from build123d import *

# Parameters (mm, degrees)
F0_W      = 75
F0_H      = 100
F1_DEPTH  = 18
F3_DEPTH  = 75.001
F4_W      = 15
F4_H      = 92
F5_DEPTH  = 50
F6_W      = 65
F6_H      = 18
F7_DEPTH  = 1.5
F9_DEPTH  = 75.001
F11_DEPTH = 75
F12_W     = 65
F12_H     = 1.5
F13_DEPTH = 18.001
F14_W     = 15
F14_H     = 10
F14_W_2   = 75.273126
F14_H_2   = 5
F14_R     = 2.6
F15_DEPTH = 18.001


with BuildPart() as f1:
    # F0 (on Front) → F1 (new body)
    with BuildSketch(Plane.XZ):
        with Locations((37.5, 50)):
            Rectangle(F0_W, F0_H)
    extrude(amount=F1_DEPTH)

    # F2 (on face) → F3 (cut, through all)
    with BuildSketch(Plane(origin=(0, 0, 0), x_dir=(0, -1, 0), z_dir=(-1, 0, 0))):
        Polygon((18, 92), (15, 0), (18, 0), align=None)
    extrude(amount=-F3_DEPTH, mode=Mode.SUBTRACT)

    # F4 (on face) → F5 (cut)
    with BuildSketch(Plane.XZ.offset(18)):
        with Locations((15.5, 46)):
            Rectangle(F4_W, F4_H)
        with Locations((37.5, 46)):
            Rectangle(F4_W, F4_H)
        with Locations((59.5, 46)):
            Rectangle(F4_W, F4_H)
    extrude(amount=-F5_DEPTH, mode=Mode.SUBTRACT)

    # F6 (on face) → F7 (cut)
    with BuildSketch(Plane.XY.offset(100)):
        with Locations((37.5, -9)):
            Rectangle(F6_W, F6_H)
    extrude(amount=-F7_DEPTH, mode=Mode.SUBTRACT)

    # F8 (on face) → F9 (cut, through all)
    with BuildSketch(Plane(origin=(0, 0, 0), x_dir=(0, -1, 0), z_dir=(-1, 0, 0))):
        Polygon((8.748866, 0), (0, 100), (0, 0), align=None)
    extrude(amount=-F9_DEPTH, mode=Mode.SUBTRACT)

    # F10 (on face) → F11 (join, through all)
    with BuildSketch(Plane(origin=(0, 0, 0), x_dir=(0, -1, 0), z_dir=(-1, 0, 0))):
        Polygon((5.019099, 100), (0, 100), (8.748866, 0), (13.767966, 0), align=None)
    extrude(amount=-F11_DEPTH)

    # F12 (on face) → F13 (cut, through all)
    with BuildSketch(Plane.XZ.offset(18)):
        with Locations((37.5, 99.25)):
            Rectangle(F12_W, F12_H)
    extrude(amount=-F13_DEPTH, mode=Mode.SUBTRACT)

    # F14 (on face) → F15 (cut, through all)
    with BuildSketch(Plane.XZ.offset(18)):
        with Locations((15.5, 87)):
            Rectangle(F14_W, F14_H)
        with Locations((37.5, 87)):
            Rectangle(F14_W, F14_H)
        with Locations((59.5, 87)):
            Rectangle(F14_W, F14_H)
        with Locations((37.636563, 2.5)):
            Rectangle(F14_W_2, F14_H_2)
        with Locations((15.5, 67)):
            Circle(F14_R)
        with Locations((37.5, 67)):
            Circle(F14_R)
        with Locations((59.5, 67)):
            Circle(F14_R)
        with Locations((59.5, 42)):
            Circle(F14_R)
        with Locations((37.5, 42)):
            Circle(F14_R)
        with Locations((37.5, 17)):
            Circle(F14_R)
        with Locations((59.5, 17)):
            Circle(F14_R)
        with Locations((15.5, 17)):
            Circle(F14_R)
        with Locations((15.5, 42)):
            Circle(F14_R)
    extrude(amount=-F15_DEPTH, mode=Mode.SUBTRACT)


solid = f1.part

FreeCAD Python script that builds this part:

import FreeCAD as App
import Part
import Sketcher

V = App.Vector
Q = App.Units.Quantity

doc = App.newDocument("Part")
body = doc.addObject("PartDesign::Body", "Body")

sketch1 = doc.addObject("Sketcher::SketchObject", "Sketch")
body.addObject(sketch1)
sketch1.AttachmentSupport = (doc.XZ_Plane, [""])
sketch1.MapMode = "FlatFace"
sketch1.addGeometry([
    Part.LineSegment(V(0, 100, 0), V(0, 0, 0)),
    Part.LineSegment(V(0, 0, 0), V(75, 0, 0)),
    Part.LineSegment(V(75, 0, 0), V(75, 100, 0)),
    Part.LineSegment(V(75, 100, 0), V(0, 100, 0)),
], False)
sketch1.addConstraint([
    Sketcher.Constraint("Coincident", 0, 2, 1, 1),
    Sketcher.Constraint("Coincident", 1, 2, 2, 1),
    Sketcher.Constraint("Coincident", 2, 2, 3, 1),
    Sketcher.Constraint("Coincident", 3, 2, 0, 1),
    Sketcher.Constraint("Vertical", 0),
    Sketcher.Constraint("Horizontal", 1),
    Sketcher.Constraint("Vertical", 2),
    Sketcher.Constraint("Horizontal", 3),
    Sketcher.Constraint("Coincident", 0, 2, -1, 1),
    Sketcher.Constraint("DistanceX", 1, 1, 1, 2, Q("75 mm")),
    Sketcher.Constraint("DistanceY", 0, 2, 0, 1, Q("100 mm")),
])
pad1 = doc.addObject("PartDesign::Pad", "Pad")
body.addObject(pad1)
pad1.Profile = sketch1
pad1.Length = 18

sketch2 = doc.addObject("Sketcher::SketchObject", "Sketch001")
body.addObject(sketch2)
sketch2.AttachmentSupport = (doc.YZ_Plane, [""])
sketch2.MapMode = "FlatFace"
sketch2.addGeometry([
    Part.LineSegment(V(-18, 92, 0), V(-15, 0, 0)),
    Part.LineSegment(V(-15, 0, 0), V(-18, 0, 0)),
    Part.LineSegment(V(-18, 0, 0), V(-18, 92, 0)),
], False)
sketch2.addConstraint([
    Sketcher.Constraint("Coincident", 0, 2, 1, 1),
    Sketcher.Constraint("Coincident", 1, 2, 2, 1),
    Sketcher.Constraint("Coincident", 2, 2, 0, 1),
    Sketcher.Constraint("Horizontal", 1),
    Sketcher.Constraint("Vertical", 2),
    Sketcher.Constraint("PointOnObject", 0, 2, -1),
    Sketcher.Constraint("DistanceX", 1, 2, 1, 1, Q("3 mm")),
    Sketcher.Constraint("DistanceY", 2, 1, 2, 2, Q("92 mm")),
    Sketcher.Constraint("DistanceX", 0, 2, -1, 1, Q("15 mm")),
])
pocket1 = doc.addObject("PartDesign::Pocket", "Pocket")
body.addObject(pocket1)
pocket1.Profile = sketch2
pocket1.Type = "ThroughAll"
pocket1.Reversed = True

sketch3 = doc.addObject("Sketcher::SketchObject", "Sketch002")
body.addObject(sketch3)
sketch3.AttachmentSupport = (doc.XZ_Plane, [""])
sketch3.MapMode = "FlatFace"
sketch3.AttachmentOffset = App.Placement(V(0, 0, 18), App.Rotation())
sketch3.addGeometry([
    Part.LineSegment(V(8, 92, 0), V(8, 0, 0)),
    Part.LineSegment(V(8, 0, 0), V(23, 0, 0)),
    Part.LineSegment(V(23, 0, 0), V(23, 92, 0)),
    Part.LineSegment(V(23, 92, 0), V(8, 92, 0)),
    Part.LineSegment(V(30, 92, 0), V(30, 0, 0)),
    Part.LineSegment(V(30, 0, 0), V(45, 0, 0)),
    Part.LineSegment(V(45, 0, 0), V(45, 92, 0)),
    Part.LineSegment(V(45, 92, 0), V(30, 92, 0)),
    Part.LineSegment(V(52, 92, 0), V(52, 0, 0)),
    Part.LineSegment(V(52, 0, 0), V(67, 0, 0)),
    Part.LineSegment(V(67, 0, 0), V(67, 92, 0)),
    Part.LineSegment(V(67, 92, 0), V(52, 92, 0)),
], False)
sketch3.addConstraint([
    Sketcher.Constraint("Coincident", 0, 2, 1, 1),
    Sketcher.Constraint("Coincident", 1, 2, 2, 1),
    Sketcher.Constraint("Coincident", 2, 2, 3, 1),
    Sketcher.Constraint("Coincident", 3, 2, 0, 1),
    Sketcher.Constraint("Coincident", 4, 2, 5, 1),
    Sketcher.Constraint("Coincident", 5, 2, 6, 1),
    Sketcher.Constraint("Coincident", 6, 2, 7, 1),
    Sketcher.Constraint("Coincident", 7, 2, 4, 1),
    Sketcher.Constraint("Coincident", 8, 2, 9, 1),
    Sketcher.Constraint("Coincident", 9, 2, 10, 1),
    Sketcher.Constraint("Coincident", 10, 2, 11, 1),
    Sketcher.Constraint("Coincident", 11, 2, 8, 1),
    Sketcher.Constraint("Vertical", 0),
    Sketcher.Constraint("Horizontal", 1),
    Sketcher.Constraint("Vertical", 2),
    Sketcher.Constraint("Horizontal", 3),
    Sketcher.Constraint("Vertical", 4),
    Sketcher.Constraint("Horizontal", 5),
    Sketcher.Constraint("Vertical", 6),
    Sketcher.Constraint("Horizontal", 7),
    Sketcher.Constraint("Vertical", 8),
    Sketcher.Constraint("Horizontal", 9),
    Sketcher.Constraint("Vertical", 10),
    Sketcher.Constraint("Horizontal", 11),
    Sketcher.Constraint("PointOnObject", 0, 2, -1),
    Sketcher.Constraint("PointOnObject", 4, 2, -1),
    Sketcher.Constraint("PointOnObject", 8, 2, -1),
    Sketcher.Constraint("Horizontal", 3, 2, 6, 2),
    Sketcher.Constraint("Horizontal", 7, 2, 10, 2),
    Sketcher.Constraint("Equal", 3, 5),
    Sketcher.Constraint("Equal", 7, 9),
    Sketcher.Constraint("DistanceX", 1, 1, 1, 2, Q("15 mm")),
    Sketcher.Constraint("DistanceY", 0, 2, 0, 1, Q("92 mm")),
    Sketcher.Constraint("DistanceX", -1, 1, 0, 2, Q("8 mm")),
    Sketcher.Constraint("DistanceX", -1, 1, 4, 2, Q("30 mm")),
    Sketcher.Constraint("DistanceX", -1, 1, 8, 2, Q("52 mm")),
])
pocket2 = doc.addObject("PartDesign::Pocket", "Pocket001")
body.addObject(pocket2)
pocket2.Profile = sketch3
pocket2.Length = 50

sketch4 = doc.addObject("Sketcher::SketchObject", "Sketch003")
body.addObject(sketch4)
sketch4.AttachmentSupport = (doc.XY_Plane, [""])
sketch4.MapMode = "FlatFace"
sketch4.AttachmentOffset = App.Placement(V(0, 0, 100), App.Rotation())
sketch4.addGeometry([
    Part.LineSegment(V(5, 0, 0), V(5, -18, 0)),
    Part.LineSegment(V(5, -18, 0), V(70, -18, 0)),
    Part.LineSegment(V(70, -18, 0), V(70, 0, 0)),
    Part.LineSegment(V(70, 0, 0), V(5, 0, 0)),
], False)
sketch4.addConstraint([
    Sketcher.Constraint("Coincident", 0, 2, 1, 1),
    Sketcher.Constraint("Coincident", 1, 2, 2, 1),
    Sketcher.Constraint("Coincident", 2, 2, 3, 1),
    Sketcher.Constraint("Coincident", 3, 2, 0, 1),
    Sketcher.Constraint("Vertical", 0),
    Sketcher.Constraint("Horizontal", 1),
    Sketcher.Constraint("Vertical", 2),
    Sketcher.Constraint("Horizontal", 3),
    Sketcher.Constraint("PointOnObject", 2, 2, -1),
    Sketcher.Constraint("DistanceX", 1, 1, 1, 2, Q("65 mm")),
    Sketcher.Constraint("DistanceY", 0, 2, 0, 1, Q("18 mm")),
    Sketcher.Constraint("DistanceX", -1, 1, 0, 2, Q("5 mm")),
])
pocket3 = doc.addObject("PartDesign::Pocket", "Pocket002")
body.addObject(pocket3)
pocket3.Profile = sketch4
pocket3.Length = 1.5

sketch5 = doc.addObject("Sketcher::SketchObject", "Sketch004")
body.addObject(sketch5)
sketch5.AttachmentSupport = (doc.YZ_Plane, [""])
sketch5.MapMode = "FlatFace"
sketch5.addGeometry([
    Part.LineSegment(V(-8.748866, 0, 0), V(0, 100, 0)),
    Part.LineSegment(V(0, 100, 0), V(0, 0, 0)),
    Part.LineSegment(V(0, 0, 0), V(-8.748866, 0, 0)),
], False)
sketch5.addConstraint([
    Sketcher.Constraint("Coincident", 0, 2, 1, 1),
    Sketcher.Constraint("Coincident", 1, 2, 2, 1),
    Sketcher.Constraint("Coincident", 2, 2, 0, 1),
    Sketcher.Constraint("Vertical", 1),
    Sketcher.Constraint("Horizontal", 2),
    Sketcher.Constraint("Coincident", 1, 2, -1, 1),
    Sketcher.Constraint("DistanceY", 1, 2, 1, 1, Q("100 mm")),
    Sketcher.Constraint("Angle", 0, Q("85 deg")),
])
pocket4 = doc.addObject("PartDesign::Pocket", "Pocket003")
body.addObject(pocket4)
pocket4.Profile = sketch5
pocket4.Type = "ThroughAll"
pocket4.Reversed = True

sketch6 = doc.addObject("Sketcher::SketchObject", "Sketch005")
body.addObject(sketch6)
sketch6.AttachmentSupport = (doc.YZ_Plane, [""])
sketch6.MapMode = "FlatFace"
sketch6.addGeometry([
    Part.LineSegment(V(-5.019099, 100, 0), V(0, 100, 0)),
    Part.LineSegment(V(0, 100, 0), V(-8.748866, 0, 0)),
    Part.LineSegment(V(-8.748866, 0, 0), V(-13.767966, 0, 0)),
    Part.LineSegment(V(-13.767966, 0, 0), V(-5.019099, 100, 0)),
], False)
sketch6.addConstraint([
    Sketcher.Constraint("Coincident", 0, 2, 1, 1),
    Sketcher.Constraint("Coincident", 1, 2, 2, 1),
    Sketcher.Constraint("Coincident", 2, 2, 3, 1),
    Sketcher.Constraint("Coincident", 3, 2, 0, 1),
    Sketcher.Constraint("Horizontal", 0),
    Sketcher.Constraint("Horizontal", 2),
    Sketcher.Constraint("PointOnObject", 0, 2, -2),
    Sketcher.Constraint("PointOnObject", 1, 2, -1),
    Sketcher.Constraint("Parallel", 1, 3),
    Sketcher.Constraint("Angle", 1, Q("-95 deg")),
    Sketcher.Constraint("DistanceY", -1, 1, 0, 2, Q("100 mm")),
    Sketcher.Constraint("DistanceX", 0, 1, 0, 2, Q("5.019099 mm")),
])
pad2 = doc.addObject("PartDesign::Pad", "Pad001")
body.addObject(pad2)
pad2.Profile = sketch6
pad2.Type = "UpToLast"

sketch7 = doc.addObject("Sketcher::SketchObject", "Sketch006")
body.addObject(sketch7)
sketch7.AttachmentSupport = (doc.XZ_Plane, [""])
sketch7.MapMode = "FlatFace"
sketch7.AttachmentOffset = App.Placement(V(0, 0, 18), App.Rotation())
sketch7.addGeometry([
    Part.LineSegment(V(5, 100, 0), V(5, 98.5, 0)),
    Part.LineSegment(V(5, 98.5, 0), V(70, 98.5, 0)),
    Part.LineSegment(V(70, 98.5, 0), V(70, 100, 0)),
    Part.LineSegment(V(70, 100, 0), V(5, 100, 0)),
], False)
sketch7.addConstraint([
    Sketcher.Constraint("Coincident", 0, 2, 1, 1),
    Sketcher.Constraint("Coincident", 1, 2, 2, 1),
    Sketcher.Constraint("Coincident", 2, 2, 3, 1),
    Sketcher.Constraint("Coincident", 3, 2, 0, 1),
    Sketcher.Constraint("Vertical", 0),
    Sketcher.Constraint("Horizontal", 1),
    Sketcher.Constraint("Vertical", 2),
    Sketcher.Constraint("Horizontal", 3),
    Sketcher.Constraint("DistanceX", 1, 1, 1, 2, Q("65 mm")),
    Sketcher.Constraint("DistanceY", 0, 2, 0, 1, Q("1.5 mm")),
    Sketcher.Constraint("DistanceX", -1, 1, 0, 2, Q("5 mm")),
    Sketcher.Constraint("DistanceY", -1, 1, 2, 2, Q("100 mm")),
])
pocket5 = doc.addObject("PartDesign::Pocket", "Pocket004")
body.addObject(pocket5)
pocket5.Profile = sketch7
pocket5.Type = "ThroughAll"

sketch8 = doc.addObject("Sketcher::SketchObject", "Sketch007")
body.addObject(sketch8)
sketch8.AttachmentSupport = (doc.XZ_Plane, [""])
sketch8.MapMode = "FlatFace"
sketch8.AttachmentOffset = App.Placement(V(0, 0, 18), App.Rotation())
sketch8.addGeometry([
    Part.LineSegment(V(8, 92, 0), V(8, 82, 0)),
    Part.LineSegment(V(8, 82, 0), V(23, 82, 0)),
    Part.LineSegment(V(23, 82, 0), V(23, 92, 0)),
    Part.LineSegment(V(23, 92, 0), V(8, 92, 0)),
    Part.LineSegment(V(30, 92, 0), V(30, 82, 0)),
    Part.LineSegment(V(30, 82, 0), V(45, 82, 0)),
    Part.LineSegment(V(45, 82, 0), V(45, 92, 0)),
    Part.LineSegment(V(45, 92, 0), V(30, 92, 0)),
    Part.LineSegment(V(52, 92, 0), V(52, 82, 0)),
    Part.LineSegment(V(52, 82, 0), V(67, 82, 0)),
    Part.LineSegment(V(67, 82, 0), V(67, 92, 0)),
    Part.LineSegment(V(67, 92, 0), V(52, 92, 0)),
    Part.LineSegment(V(0, 5, 0), V(0, 0, 0)),
    Part.LineSegment(V(0, 0, 0), V(75.273126, 0, 0)),
    Part.LineSegment(V(75.273126, 0, 0), V(75.273126, 5, 0)),
    Part.LineSegment(V(75.273126, 5, 0), V(0, 5, 0)),
    Part.Circle(V(15.5, 67, 0), V(0, 0, 1), 2.6),
    Part.Circle(V(37.5, 67, 0), V(0, 0, 1), 2.6),
    Part.Circle(V(59.5, 67, 0), V(0, 0, 1), 2.6),
    Part.Circle(V(59.5, 42, 0), V(0, 0, 1), 2.6),
    Part.Circle(V(37.5, 42, 0), V(0, 0, 1), 2.6),
    Part.Circle(V(37.5, 17, 0), V(0, 0, 1), 2.6),
    Part.Circle(V(59.5, 17, 0), V(0, 0, 1), 2.6),
    Part.Circle(V(15.5, 17, 0), V(0, 0, 1), 2.6),
    Part.Circle(V(15.5, 42, 0), V(0, 0, 1), 2.6),
], False)
sketch8.addConstraint([
    Sketcher.Constraint("Coincident", 0, 2, 1, 1),
    Sketcher.Constraint("Coincident", 1, 2, 2, 1),
    Sketcher.Constraint("Coincident", 2, 2, 3, 1),
    Sketcher.Constraint("Coincident", 3, 2, 0, 1),
    Sketcher.Constraint("Coincident", 4, 2, 5, 1),
    Sketcher.Constraint("Coincident", 5, 2, 6, 1),
    Sketcher.Constraint("Coincident", 6, 2, 7, 1),
    Sketcher.Constraint("Coincident", 7, 2, 4, 1),
    Sketcher.Constraint("Coincident", 8, 2, 9, 1),
    Sketcher.Constraint("Coincident", 9, 2, 10, 1),
    Sketcher.Constraint("Coincident", 10, 2, 11, 1),
    Sketcher.Constraint("Coincident", 11, 2, 8, 1),
    Sketcher.Constraint("Coincident", 12, 2, 13, 1),
    Sketcher.Constraint("Coincident", 13, 2, 14, 1),
    Sketcher.Constraint("Coincident", 14, 2, 15, 1),
    Sketcher.Constraint("Coincident", 15, 2, 12, 1),
    Sketcher.Constraint("Vertical", 0),
    Sketcher.Constraint("Horizontal", 1),
    Sketcher.Constraint("Vertical", 2),
    Sketcher.Constraint("Horizontal", 3),
    Sketcher.Constraint("Vertical", 4),
    Sketcher.Constraint("Horizontal", 5),
    Sketcher.Constraint("Vertical", 6),
    Sketcher.Constraint("Horizontal", 7),
    Sketcher.Constraint("Vertical", 8),
    Sketcher.Constraint("Horizontal", 9),
    Sketcher.Constraint("Vertical", 10),
    Sketcher.Constraint("Horizontal", 11),
    Sketcher.Constraint("Vertical", 12),
    Sketcher.Constraint("Horizontal", 13),
    Sketcher.Constraint("Vertical", 14),
    Sketcher.Constraint("Horizontal", 15),
    Sketcher.Constraint("Coincident", 12, 2, -1, 1),
    Sketcher.Constraint("Equal", 16, 17),
    Sketcher.Constraint("Equal", 17, 18),
    Sketcher.Constraint("Equal", 18, 19),
    Sketcher.Constraint("Equal", 19, 20),
    Sketcher.Constraint("Equal", 20, 21),
    Sketcher.Constraint("Equal", 21, 22),
    Sketcher.Constraint("Equal", 22, 23),
    Sketcher.Constraint("Equal", 23, 24),
    Sketcher.Constraint("Horizontal", 16, 3, 17, 3),
    Sketcher.Constraint("Horizontal", 17, 3, 18, 3),
    Sketcher.Constraint("Horizontal", 19, 3, 20, 3),
    Sketcher.Constraint("Horizontal", 21, 3, 22, 3),
    Sketcher.Constraint("Horizontal", 22, 3, 23, 3),
    Sketcher.Constraint("Horizontal", 20, 3, 24, 3),
    Sketcher.Constraint("Horizontal", 1, 2, 4, 2),
    Sketcher.Constraint("Horizontal", 3, 2, 6, 2),
    Sketcher.Constraint("Horizontal", 5, 2, 8, 2),
    Sketcher.Constraint("Horizontal", 7, 2, 10, 2),
    Sketcher.Constraint("Vertical", 18, 3, 19, 3),
    Sketcher.Constraint("Vertical", 17, 3, 20, 3),
    Sketcher.Constraint("Vertical", 20, 3, 21, 3),
    Sketcher.Constraint("Vertical", 19, 3, 22, 3),
    Sketcher.Constraint("Vertical", 16, 3, 23, 3),
    Sketcher.Constraint("Vertical", 23, 3, 24, 3),
    Sketcher.Constraint("Equal", 3, 5),
    Sketcher.Constraint("Equal", 7, 9),
    Sketcher.Constraint("Diameter", 16, Q("5.2 mm")),
    Sketcher.Constraint("DistanceX", 1, 1, 1, 2, Q("15 mm")),
    Sketcher.Constraint("DistanceY", 0, 2, 0, 1, Q("10 mm")),
    Sketcher.Constraint("DistanceY", 12, 2, 12, 1, Q("5 mm")),
    Sketcher.Constraint("DistanceY", -1, 1, 16, 3, Q("67 mm")),
    Sketcher.Constraint("DistanceY", -1, 1, 19, 3, Q("42 mm")),
    Sketcher.Constraint("DistanceY", -1, 1, 21, 3, Q("17 mm")),
    Sketcher.Constraint("DistanceX", -1, 1, 0, 2, Q("8 mm")),
    Sketcher.Constraint("DistanceY", -1, 1, 0, 2, Q("82 mm")),
    Sketcher.Constraint("DistanceX", -1, 1, 4, 2, Q("30 mm")),
    Sketcher.Constraint("DistanceX", -1, 1, 8, 2, Q("52 mm")),
    Sketcher.Constraint("DistanceX", 16, 3, 17, 3, Q("22 mm")),
    Sketcher.Constraint("DistanceX", 17, 3, 18, 3, Q("22 mm")),
    Sketcher.Constraint("DistanceX", -1, 1, 16, 3, Q("15.5 mm")),
    Sketcher.Constraint("DistanceX", 13, 1, 13, 2, Q("75.273126 mm")),
])
pocket6 = doc.addObject("PartDesign::Pocket", "Pocket005")
body.addObject(pocket6)
pocket6.Profile = sketch8
pocket6.Type = "ThroughAll"

doc.recompute()
